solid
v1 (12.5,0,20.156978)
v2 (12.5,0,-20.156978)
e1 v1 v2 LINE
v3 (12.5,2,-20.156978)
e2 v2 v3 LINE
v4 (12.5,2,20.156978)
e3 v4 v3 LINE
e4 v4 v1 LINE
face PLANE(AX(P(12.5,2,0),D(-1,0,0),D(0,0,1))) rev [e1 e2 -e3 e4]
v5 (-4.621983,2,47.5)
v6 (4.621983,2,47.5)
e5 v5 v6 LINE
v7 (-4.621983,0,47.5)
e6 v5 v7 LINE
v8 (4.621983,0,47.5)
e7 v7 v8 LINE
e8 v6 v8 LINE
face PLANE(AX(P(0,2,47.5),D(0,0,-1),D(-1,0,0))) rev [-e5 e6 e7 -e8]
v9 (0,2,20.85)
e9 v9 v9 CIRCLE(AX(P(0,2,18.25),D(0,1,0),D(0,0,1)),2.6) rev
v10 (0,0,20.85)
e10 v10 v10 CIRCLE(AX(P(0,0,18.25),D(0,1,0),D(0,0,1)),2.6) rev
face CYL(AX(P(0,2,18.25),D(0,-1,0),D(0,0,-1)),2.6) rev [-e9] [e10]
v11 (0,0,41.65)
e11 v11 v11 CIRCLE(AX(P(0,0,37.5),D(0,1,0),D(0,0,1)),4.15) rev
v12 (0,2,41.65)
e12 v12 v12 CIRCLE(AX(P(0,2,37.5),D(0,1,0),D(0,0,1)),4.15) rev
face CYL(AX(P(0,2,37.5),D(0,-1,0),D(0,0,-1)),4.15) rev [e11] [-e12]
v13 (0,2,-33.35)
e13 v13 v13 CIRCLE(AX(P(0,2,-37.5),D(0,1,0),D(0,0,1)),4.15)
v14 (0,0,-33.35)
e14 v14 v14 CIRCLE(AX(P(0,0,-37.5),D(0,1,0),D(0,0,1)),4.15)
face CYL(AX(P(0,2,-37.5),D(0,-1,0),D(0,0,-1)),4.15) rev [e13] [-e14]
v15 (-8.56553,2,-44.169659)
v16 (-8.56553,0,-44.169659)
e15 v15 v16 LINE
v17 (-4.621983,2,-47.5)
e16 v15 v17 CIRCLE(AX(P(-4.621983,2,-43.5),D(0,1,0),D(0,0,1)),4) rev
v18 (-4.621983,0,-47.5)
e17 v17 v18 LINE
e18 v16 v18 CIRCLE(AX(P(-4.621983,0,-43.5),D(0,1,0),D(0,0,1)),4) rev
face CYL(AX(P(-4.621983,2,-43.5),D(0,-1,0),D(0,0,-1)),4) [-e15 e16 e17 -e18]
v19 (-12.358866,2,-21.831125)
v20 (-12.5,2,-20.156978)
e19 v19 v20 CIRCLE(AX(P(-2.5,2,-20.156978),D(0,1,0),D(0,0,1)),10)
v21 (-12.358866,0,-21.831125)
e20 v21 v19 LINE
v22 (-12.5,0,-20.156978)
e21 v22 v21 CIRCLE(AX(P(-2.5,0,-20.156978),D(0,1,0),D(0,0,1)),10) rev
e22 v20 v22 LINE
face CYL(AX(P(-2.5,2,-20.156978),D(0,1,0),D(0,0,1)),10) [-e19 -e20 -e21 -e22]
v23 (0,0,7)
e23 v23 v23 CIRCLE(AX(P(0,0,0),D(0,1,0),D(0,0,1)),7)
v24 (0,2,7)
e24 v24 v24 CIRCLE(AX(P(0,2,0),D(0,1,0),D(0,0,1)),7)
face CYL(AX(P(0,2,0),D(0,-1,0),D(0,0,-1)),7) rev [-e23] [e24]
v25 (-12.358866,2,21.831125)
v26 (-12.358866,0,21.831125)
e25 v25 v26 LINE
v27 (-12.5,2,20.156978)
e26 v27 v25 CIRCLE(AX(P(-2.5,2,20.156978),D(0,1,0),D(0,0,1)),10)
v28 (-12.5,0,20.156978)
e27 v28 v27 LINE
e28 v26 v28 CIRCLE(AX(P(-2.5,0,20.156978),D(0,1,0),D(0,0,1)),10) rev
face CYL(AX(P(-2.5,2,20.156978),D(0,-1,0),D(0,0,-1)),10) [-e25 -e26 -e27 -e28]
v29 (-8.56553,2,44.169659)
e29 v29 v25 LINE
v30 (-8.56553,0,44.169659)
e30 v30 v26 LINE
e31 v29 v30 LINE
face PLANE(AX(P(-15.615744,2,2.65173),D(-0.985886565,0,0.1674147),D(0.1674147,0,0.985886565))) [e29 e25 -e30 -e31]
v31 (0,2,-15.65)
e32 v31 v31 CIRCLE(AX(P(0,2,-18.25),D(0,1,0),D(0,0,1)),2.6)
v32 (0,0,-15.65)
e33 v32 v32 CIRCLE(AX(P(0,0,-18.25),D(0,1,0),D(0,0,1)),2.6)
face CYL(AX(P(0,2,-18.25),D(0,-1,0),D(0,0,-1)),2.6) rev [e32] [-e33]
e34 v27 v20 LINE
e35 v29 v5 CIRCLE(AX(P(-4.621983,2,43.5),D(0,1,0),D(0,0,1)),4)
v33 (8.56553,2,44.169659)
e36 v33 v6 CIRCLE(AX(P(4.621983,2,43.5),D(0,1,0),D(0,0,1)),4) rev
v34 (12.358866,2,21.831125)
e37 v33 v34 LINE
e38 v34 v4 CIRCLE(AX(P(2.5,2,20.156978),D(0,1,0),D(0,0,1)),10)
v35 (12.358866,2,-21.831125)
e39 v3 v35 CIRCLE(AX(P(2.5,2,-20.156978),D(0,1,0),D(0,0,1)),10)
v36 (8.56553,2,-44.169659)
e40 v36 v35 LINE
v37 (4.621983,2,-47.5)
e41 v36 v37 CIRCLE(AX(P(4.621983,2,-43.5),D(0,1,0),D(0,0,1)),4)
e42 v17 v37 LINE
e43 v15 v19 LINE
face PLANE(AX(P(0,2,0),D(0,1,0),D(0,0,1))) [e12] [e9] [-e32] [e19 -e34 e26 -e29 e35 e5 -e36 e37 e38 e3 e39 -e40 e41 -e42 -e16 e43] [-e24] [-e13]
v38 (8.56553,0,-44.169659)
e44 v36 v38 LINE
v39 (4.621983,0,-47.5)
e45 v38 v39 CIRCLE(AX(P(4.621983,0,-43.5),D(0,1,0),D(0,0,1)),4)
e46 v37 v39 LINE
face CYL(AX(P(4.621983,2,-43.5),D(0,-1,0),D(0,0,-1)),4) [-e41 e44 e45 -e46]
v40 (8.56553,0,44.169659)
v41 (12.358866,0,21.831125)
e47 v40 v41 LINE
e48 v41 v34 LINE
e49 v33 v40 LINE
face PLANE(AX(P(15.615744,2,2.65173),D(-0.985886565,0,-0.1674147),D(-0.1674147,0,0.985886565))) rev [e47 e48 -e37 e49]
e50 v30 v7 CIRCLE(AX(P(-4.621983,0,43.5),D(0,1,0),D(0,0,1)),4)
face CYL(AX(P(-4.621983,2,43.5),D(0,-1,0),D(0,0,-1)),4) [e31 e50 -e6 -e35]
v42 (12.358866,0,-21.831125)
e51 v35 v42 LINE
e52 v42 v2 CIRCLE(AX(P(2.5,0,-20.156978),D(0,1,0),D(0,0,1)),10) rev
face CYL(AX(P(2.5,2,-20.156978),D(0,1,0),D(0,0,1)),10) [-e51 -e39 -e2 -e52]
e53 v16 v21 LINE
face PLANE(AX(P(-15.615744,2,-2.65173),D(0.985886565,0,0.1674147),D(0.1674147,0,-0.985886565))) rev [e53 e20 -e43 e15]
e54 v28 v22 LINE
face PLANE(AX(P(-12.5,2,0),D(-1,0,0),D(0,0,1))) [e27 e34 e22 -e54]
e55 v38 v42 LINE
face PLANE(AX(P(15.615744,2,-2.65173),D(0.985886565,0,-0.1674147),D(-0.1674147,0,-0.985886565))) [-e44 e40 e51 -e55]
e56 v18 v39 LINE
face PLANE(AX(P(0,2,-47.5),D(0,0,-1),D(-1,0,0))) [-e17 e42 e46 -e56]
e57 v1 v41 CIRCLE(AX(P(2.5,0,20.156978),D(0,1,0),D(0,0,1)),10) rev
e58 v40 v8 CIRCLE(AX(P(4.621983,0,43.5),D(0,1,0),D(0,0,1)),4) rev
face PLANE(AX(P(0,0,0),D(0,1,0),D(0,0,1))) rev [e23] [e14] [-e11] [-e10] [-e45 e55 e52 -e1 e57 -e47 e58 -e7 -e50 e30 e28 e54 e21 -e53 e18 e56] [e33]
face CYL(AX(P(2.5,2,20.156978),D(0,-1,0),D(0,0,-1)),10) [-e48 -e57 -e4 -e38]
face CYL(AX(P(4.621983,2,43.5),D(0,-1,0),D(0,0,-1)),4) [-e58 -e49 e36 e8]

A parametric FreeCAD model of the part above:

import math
import FreeCAD as App
import Part
import Sketcher

V = App.Vector


def edges_at(feature, points):
    """Names of the edges that pass closest to the given points."""
    edges = feature.Shape.Edges
    near = lambda p: min(range(len(edges)), key=lambda i: edges[i].distToShape(Part.Vertex(*p))[0])
    return sorted({f"Edge{near(p) + 1}" for p in points})

doc = App.newDocument("Part")
body = doc.addObject("PartDesign::Body", "Body")

# Sketch on XZ plane
sketch1 = doc.addObject("Sketcher::SketchObject", "Sketch")
body.addObject(sketch1)
sketch1.AttachmentSupport = (doc.XZ_Plane, [""])
sketch1.MapMode = "FlatFace"
sketch1.addGeometry(Part.LineSegment(V(4.621983, -47.5, 0), V(-4.621983, -47.5, 0)), False)
sketch1.addGeometry(Part.ArcOfCircle(Part.Circle(V(-4.621983, -43.5, 0), V(0, 0, 1), 4), math.radians(-170.362462), math.radians(-90)), False)
sketch1.addGeometry(Part.LineSegment(V(-8.56553, -44.169659, 0), V(-12.5, -21, 0)), False)
sketch1.addGeometry(Part.LineSegment(V(-12.5, -21, 0), V(-12.5, 21, 0)), False)
sketch1.addGeometry(Part.LineSegment(V(-12.5, 21, 0), V(-8.56553, 44.169659, 0)), False)
sketch1.addGeometry(Part.ArcOfCircle(Part.Circle(V(-4.621983, 43.5, 0), V(0, 0, 1), 4), math.radians(90), math.radians(170.362462)), False)
sketch1.addGeometry(Part.LineSegment(V(-4.621983, 47.5, 0), V(4.621983, 47.5, 0)), False)
sketch1.addGeometry(Part.ArcOfCircle(Part.Circle(V(4.621983, 43.5, 0), V(0, 0, 1), 4), math.radians(9.637538), math.radians(90)), False)
sketch1.addGeometry(Part.LineSegment(V(8.56553, 44.169659, 0), V(12.5, 21, 0)), False)
sketch1.addGeometry(Part.LineSegment(V(12.5, 21, 0), V(12.5, -21, 0)), False)
sketch1.addGeometry(Part.LineSegment(V(12.5, -21, 0), V(8.56553, -44.169659, 0)), False)
sketch1.addGeometry(Part.ArcOfCircle(Part.Circle(V(4.621983, -43.5, 0), V(0, 0, 1), 4), math.radians(-90), math.radians(-9.637538)), False)
sketch1.addGeometry(Part.Circle(V(0, 37.5, 0), V(0, 0, 1), 4.15), False)
sketch1.addGeometry(Part.Circle(V(0, 18.25, 0), V(0, 0, 1), 2.6), False)
sketch1.addGeometry(Part.Circle(V(0, 0, 0), V(0, 0, 1), 7), False)
sketch1.addGeometry(Part.Circle(V(0, -18.25, 0), V(0, 0, 1), 2.6), False)
sketch1.addGeometry(Part.Circle(V(0, -37.5, 0), V(0, 0, 1), 4.15), False)
sketch1.addConstraint(Sketcher.Constraint("Tangent", 0, 2, 1, 2))
sketch1.addConstraint(Sketcher.Constraint("Tangent", 1, 1, 2, 1))
sketch1.addConstraint(Sketcher.Constraint("Coincident", 2, 2, 3, 1))
sketch1.addConstraint(Sketcher.Constraint("Coincident", 3, 2, 4, 1))
sketch1.addConstraint(Sketcher.Constraint("Tangent", 4, 2, 5, 2))
sketch1.addConstraint(Sketcher.Constraint("Tangent", 5, 1, 6, 1))
sketch1.addConstraint(Sketcher.Constraint("Tangent", 6, 2, 7, 2))
sketch1.addConstraint(Sketcher.Constraint("Tangent", 7, 1, 8, 1))
sketch1.addConstraint(Sketcher.Constraint("Coincident", 8, 2, 9, 1))
sketch1.addConstraint(Sketcher.Constraint("Coincident", 9, 2, 10, 1))
sketch1.addConstraint(Sketcher.Constraint("Tangent", 10, 2, 11, 2))
sketch1.addConstraint(Sketcher.Constraint("Tangent", 11, 1, 0, 1))
sketch1.addConstraint(Sketcher.Constraint("Horizontal", 0))
sketch1.addConstraint(Sketcher.Constraint("Vertical", 3))
sketch1.addConstraint(Sketcher.Constraint("Horizontal", 6))
sketch1.addConstraint(Sketcher.Constraint("Vertical", 9))
sketch1.addConstraint(Sketcher.Constraint("Coincident", 14, 3, -1, 1))
sketch1.addConstraint(Sketcher.Constraint("Equal", 1, 5))
sketch1.addConstraint(Sketcher.Constraint("Equal", 5, 7))
sketch1.addConstraint(Sketcher.Constraint("Equal", 7, 11))
sketch1.addConstraint(Sketcher.Constraint("Equal", 13, 15))
sketch1.addConstraint(Sketcher.Constraint("Equal", 12, 16))
sketch1.addConstraint(Sketcher.Constraint("Symmetric", 1, 3, 7, 3, -1, 1))
sketch1.addConstraint(Sketcher.Constraint("Symmetric", 13, 3, 15, 3, -1, 1))
sketch1.addConstraint(Sketcher.Constraint("Symmetric", 12, 3, 16, 3, -1, 1))
sketch1.addConstraint(Sketcher.Constraint("Symmetric", 2, 2, 8, 2, -1, 1))
sketch1.addConstraint(Sketcher.Constraint("Symmetric", 4, 2, 10, 2, -1, 1))
sketch1.addConstraint(Sketcher.Constraint("Symmetric", 4, 2, 7, 1, -2))
sketch1.addConstraint(Sketcher.Constraint("PointOnObject", 12, 3, -2))
sketch1.addConstraint(Sketcher.Constraint("PointOnObject", 13, 3, -2))
sketch1.addConstraint(Sketcher.Constraint("Diameter", 14, 14.0))
sketch1.addConstraint(Sketcher.Constraint("Radius", 1, 4.0))
sketch1.addConstraint(Sketcher.Constraint("Diameter", 12, 8.3))
sketch1.addConstraint(Sketcher.Constraint("Diameter", 13, 5.2))
sketch1.addConstraint(Sketcher.Constraint("DistanceY", 3, 1, 3, 2, 42.0))
sketch1.addConstraint(Sketcher.Constraint("DistanceY", 1, 3, 5, 3, 87.0))
sketch1.addConstraint(Sketcher.Constraint("DistanceY", 12, 3, 5, 3, 6.0))
sketch1.addConstraint(Sketcher.Constraint("DistanceX", 2, 2, 9, 2, 25.0))
sketch1.addConstraint(Sketcher.Constraint("DistanceY", 15, 3, 13, 3, 36.5))
sketch1.addConstraint(Sketcher.Constraint("DistanceX", 0, 2, 0, 1, 9.243967))
pad1 = doc.addObject("PartDesign::Pad", "Pad")
body.addObject(pad1)
pad1.Profile = sketch1
pad1.Length = 2
pad1.Reversed = True
doc.recompute()

fillet = doc.addObject("PartDesign::Fillet", "Fillet")
body.addObject(fillet)
fillet.Base = (pad1, edges_at(pad1, [
    (-12.5, 1, 21),
    (-12.5, 1, -21),
    (12.5, 1, -21),
    (12.5, 1, 21),
]))
fillet.Radius = 10

doc.recompute()
